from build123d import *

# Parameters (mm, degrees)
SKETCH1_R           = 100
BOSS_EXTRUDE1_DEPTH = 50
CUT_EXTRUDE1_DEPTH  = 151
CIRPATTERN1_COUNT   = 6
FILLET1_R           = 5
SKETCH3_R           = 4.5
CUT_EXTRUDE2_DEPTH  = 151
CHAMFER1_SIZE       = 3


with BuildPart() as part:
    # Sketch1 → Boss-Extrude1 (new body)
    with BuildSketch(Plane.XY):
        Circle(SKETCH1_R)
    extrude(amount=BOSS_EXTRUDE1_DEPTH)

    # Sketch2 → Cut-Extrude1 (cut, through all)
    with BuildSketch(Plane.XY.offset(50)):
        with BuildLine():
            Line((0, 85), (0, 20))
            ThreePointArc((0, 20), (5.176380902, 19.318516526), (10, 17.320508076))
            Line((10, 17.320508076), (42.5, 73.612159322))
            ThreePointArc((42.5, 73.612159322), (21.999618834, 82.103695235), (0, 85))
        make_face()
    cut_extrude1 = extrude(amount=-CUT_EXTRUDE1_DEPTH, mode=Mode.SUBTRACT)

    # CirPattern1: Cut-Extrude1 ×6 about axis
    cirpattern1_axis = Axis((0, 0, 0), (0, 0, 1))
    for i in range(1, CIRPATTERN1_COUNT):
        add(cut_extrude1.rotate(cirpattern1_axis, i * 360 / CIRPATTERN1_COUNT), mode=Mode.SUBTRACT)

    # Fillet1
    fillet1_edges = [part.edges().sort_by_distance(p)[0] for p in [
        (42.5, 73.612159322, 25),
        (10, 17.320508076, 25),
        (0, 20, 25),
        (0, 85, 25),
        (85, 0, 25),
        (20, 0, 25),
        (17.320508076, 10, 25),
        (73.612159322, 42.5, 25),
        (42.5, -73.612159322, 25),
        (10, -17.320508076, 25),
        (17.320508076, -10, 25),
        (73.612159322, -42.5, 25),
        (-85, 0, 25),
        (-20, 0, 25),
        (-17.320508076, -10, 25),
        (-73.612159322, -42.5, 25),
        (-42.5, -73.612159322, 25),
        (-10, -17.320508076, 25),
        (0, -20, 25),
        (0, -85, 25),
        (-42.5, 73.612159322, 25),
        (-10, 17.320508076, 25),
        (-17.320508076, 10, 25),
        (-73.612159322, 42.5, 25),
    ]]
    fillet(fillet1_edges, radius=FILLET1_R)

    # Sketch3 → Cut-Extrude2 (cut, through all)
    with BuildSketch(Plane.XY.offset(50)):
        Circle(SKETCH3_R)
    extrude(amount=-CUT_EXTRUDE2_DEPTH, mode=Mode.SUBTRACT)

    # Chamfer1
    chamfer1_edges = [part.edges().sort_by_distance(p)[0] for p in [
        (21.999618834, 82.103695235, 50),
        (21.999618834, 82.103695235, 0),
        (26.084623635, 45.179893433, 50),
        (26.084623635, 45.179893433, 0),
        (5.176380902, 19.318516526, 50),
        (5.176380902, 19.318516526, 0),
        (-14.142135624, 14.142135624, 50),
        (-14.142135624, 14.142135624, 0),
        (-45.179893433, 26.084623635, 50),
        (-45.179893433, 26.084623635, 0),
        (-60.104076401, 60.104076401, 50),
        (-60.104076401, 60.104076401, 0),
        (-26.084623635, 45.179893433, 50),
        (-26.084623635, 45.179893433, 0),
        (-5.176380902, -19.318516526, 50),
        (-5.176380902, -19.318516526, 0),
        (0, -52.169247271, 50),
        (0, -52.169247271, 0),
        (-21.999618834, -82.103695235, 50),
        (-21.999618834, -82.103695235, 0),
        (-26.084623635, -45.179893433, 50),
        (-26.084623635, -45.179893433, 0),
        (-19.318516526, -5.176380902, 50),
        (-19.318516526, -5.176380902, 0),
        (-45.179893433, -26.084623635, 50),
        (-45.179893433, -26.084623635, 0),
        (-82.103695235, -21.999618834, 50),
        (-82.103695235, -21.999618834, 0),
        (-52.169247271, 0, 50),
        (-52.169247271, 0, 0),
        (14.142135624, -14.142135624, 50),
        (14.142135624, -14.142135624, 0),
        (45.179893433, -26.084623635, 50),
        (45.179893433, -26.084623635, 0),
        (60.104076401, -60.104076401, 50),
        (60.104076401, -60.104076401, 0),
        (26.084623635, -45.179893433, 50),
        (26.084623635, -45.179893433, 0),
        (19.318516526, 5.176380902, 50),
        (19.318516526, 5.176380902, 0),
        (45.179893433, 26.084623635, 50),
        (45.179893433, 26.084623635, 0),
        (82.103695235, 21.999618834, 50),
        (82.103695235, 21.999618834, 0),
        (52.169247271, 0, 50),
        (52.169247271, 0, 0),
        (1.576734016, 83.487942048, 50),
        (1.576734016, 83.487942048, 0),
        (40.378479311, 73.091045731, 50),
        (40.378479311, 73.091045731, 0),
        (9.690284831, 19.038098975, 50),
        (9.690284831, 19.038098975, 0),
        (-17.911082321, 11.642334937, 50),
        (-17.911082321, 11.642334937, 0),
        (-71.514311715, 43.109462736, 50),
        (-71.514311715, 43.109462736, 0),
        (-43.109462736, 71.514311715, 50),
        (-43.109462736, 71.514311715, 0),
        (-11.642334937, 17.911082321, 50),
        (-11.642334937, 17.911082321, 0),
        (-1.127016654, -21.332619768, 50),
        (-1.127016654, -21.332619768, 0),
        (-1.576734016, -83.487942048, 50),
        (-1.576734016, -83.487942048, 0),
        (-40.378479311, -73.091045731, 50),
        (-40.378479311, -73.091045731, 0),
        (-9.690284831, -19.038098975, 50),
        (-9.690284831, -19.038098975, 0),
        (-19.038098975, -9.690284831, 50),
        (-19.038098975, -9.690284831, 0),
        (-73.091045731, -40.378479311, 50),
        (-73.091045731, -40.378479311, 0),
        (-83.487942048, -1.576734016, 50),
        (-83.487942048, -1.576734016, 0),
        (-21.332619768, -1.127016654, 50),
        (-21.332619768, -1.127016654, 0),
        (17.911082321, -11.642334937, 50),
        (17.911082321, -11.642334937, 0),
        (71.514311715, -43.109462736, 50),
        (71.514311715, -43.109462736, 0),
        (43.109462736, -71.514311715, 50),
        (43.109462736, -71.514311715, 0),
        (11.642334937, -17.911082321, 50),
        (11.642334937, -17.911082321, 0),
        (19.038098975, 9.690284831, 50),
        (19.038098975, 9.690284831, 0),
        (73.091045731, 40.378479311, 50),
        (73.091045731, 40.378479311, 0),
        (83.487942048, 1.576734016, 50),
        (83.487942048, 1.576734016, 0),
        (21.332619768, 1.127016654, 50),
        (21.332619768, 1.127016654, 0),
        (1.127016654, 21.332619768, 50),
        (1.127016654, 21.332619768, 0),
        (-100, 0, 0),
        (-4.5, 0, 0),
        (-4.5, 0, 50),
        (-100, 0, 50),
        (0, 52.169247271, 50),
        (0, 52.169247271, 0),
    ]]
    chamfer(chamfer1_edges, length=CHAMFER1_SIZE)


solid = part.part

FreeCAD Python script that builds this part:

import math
import FreeCAD as App
import Part
import Sketcher

V = App.Vector
Q = App.Units.Quantity


def edges_at(feature, points):
    """Names of the edges that pass closest to the given points."""
    edges = feature.Shape.Edges
    near = lambda p: min(range(len(edges)), key=lambda i: edges[i].distToShape(Part.Vertex(*p))[0])
    return sorted({f"Edge{near(p) + 1}" for p in points})

doc = App.newDocument("Part")
body = doc.addObject("PartDesign::Body", "Body")

# Sketch on XY plane
sketch1 = body.newObject("Sketcher::SketchObject", "Sketch")
sketch1.AttachmentSupport = (doc.getObject("XY_Plane"), [""])
sketch1.MapMode = "FlatFace"
sketch1.addGeometry(Part.Circle(V(0, 0, 0), V(0, 0, 1), 100), False)
sketch1.addConstraint(Sketcher.Constraint("Coincident", 0, 3, -1, 1))
sketch1.addConstraint(Sketcher.Constraint("Diameter", 0, 200.0))
pad1 = body.newObject("PartDesign::Pad", "Pad")
pad1.Profile = sketch1
pad1.Length = 50

# Sketch on XY plane
sketch2 = body.newObject("Sketcher::SketchObject", "Sketch001")
sketch2.AttachmentSupport = (doc.getObject("XY_Plane"), [""])
sketch2.MapMode = "FlatFace"
sketch2.AttachmentOffset = App.Placement(V(0, 0, 50), App.Rotation())
sketch2.addGeometry(Part.LineSegment(V(0, 85, 0), V(0, 20, 0)), False)
sketch2.addGeometry(Part.ArcOfCircle(Part.Circle(V(0, 0, 0), V(0, 0, 1), 20), math.radians(60), math.radians(90)), False)
sketch2.addGeometry(Part.LineSegment(V(10, 17, 0), V(42, 74, 0)), False)
sketch2.addGeometry(Part.ArcOfCircle(Part.Circle(V(0, 0, 0), V(0, 0, 1), 85), math.radians(60), math.radians(90)), False)
sketch2.addConstraint(Sketcher.Constraint("Coincident", 0, 2, 1, 2))
sketch2.addConstraint(Sketcher.Constraint("Coincident", 1, 1, 2, 1))
sketch2.addConstraint(Sketcher.Constraint("Coincident", 2, 2, 3, 1))
sketch2.addConstraint(Sketcher.Constraint("Coincident", 3, 2, 0, 1))
sketch2.addConstraint(Sketcher.Constraint("Vertical", 0))
sketch2.addConstraint(Sketcher.Constraint("Coincident", 1, 3, -1, 1))
sketch2.addConstraint(Sketcher.Constraint("Coincident", 3, 3, -1, 1))
sketch2.addConstraint(Sketcher.Constraint("PointOnObject", 0, 2, -2))
sketch2.addConstraint(Sketcher.Constraint("Radius", 1, 20.0))
sketch2.addConstraint(Sketcher.Constraint("Radius", 3, 85.0))
sketch2.addConstraint(Sketcher.Constraint("Angle", 2, Q("60 deg")))
sketch2.addConstraint(Sketcher.Constraint("DistanceX", -1, 1, 1, 1, 10.0))
pocket1 = body.newObject("PartDesign::Pocket", "Pocket")
pocket1.Profile = sketch2
pocket1.Type = "ThroughAll"
doc.recompute()

polarpattern = body.newObject("PartDesign::PolarPattern", "PolarPattern")
polarpattern.Originals = [pocket1]
polarpattern.Axis = (doc.getObject("Z_Axis"), [""])
polarpattern.Angle = 360
polarpattern.Occurrences = 6
body.Tip = polarpattern
doc.recompute()

fillet = body.newObject("PartDesign::Fillet", "Fillet")
fillet.Base = (polarpattern, edges_at(polarpattern, [
    (42.5, 73.612, 25),
    (10, 17.321, 25),
    (0, 20, 25),
    (0, 85, 25),
    (85, 0, 25),
    (20, 0, 25),
    (17.321, 10, 25),
    (73.612, 42.5, 25),
    (42.5, -73.612, 25),
    (10, -17.321, 25),
    (17.321, -10, 25),
    (73.612, -42.5, 25),
    (-85, 0, 25),
    (-20, 0, 25),
    (-17.321, -10, 25),
    (-73.612, -42.5, 25),
    (-42.5, -73.612, 25),
    (-10, -17.321, 25),
    (0, -20, 25),
    (0, -85, 25),
    (-42.5, 73.612, 25),
    (-10, 17.321, 25),
    (-17.321, 10, 25),
    (-73.612, 42.5, 25),
]))
fillet.Radius = 5

# Sketch on XY plane
sketch3 = body.newObject("Sketcher::SketchObject", "Sketch002")
sketch3.AttachmentSupport = (doc.getObject("XY_Plane"), [""])
sketch3.MapMode = "FlatFace"
sketch3.AttachmentOffset = App.Placement(V(0, 0, 50), App.Rotation())
sketch3.addGeometry(Part.Circle(V(0, 0, 0), V(0, 0, 1), 4.5), False)
sketch3.addConstraint(Sketcher.Constraint("Coincident", 0, 3, -1, 1))
sketch3.addConstraint(Sketcher.Constraint("Diameter", 0, 9.0))
pocket2 = body.newObject("PartDesign::Pocket", "Pocket001")
pocket2.Profile = sketch3
pocket2.Type = "ThroughAll"
doc.recompute()

chamfer = body.newObject("PartDesign::Chamfer", "Chamfer")
chamfer.Base = (pocket2, edges_at(pocket2, [
    (22, 82.104, 50),
    (22, 82.104, 0),
    (26.085, 45.18, 50),
    (26.085, 45.18, 0),
    (5.176, 19.319, 50),
    (5.176, 19.319, 0),
    (-14.142, 14.142, 50),
    (-14.142, 14.142, 0),
    (-45.18, 26.085, 50),
    (-45.18, 26.085, 0),
    (-60.104, 60.104, 50),
    (-60.104, 60.104, 0),
    (-26.085, 45.18, 50),
    (-26.085, 45.18, 0),
    (-5.176, -19.319, 50),
    (-5.176, -19.319, 0),
    (0, -52.169, 50),
    (0, -52.169, 0),
    (-22, -82.104, 50),
    (-22, -82.104, 0),
    (-26.085, -45.18, 50),
    (-26.085, -45.18, 0),
    (-19.319, -5.176, 50),
    (-19.319, -5.176, 0),
    (-45.18, -26.085, 50),
    (-45.18, -26.085, 0),
    (-82.104, -22, 50),
    (-82.104, -22, 0),
    (-52.169, 0, 50),
    (-52.169, 0, 0),
    (14.142, -14.142, 50),
    (14.142, -14.142, 0),
    (45.18, -26.085, 50),
    (45.18, -26.085, 0),
    (60.104, -60.104, 50),
    (60.104, -60.104, 0),
    (26.085, -45.18, 50),
    (26.085, -45.18, 0),
    (19.319, 5.176, 50),
    (19.319, 5.176, 0),
    (45.18, 26.085, 50),
    (45.18, 26.085, 0),
    (82.104, 22, 50),
    (82.104, 22, 0),
    (52.169, 0, 50),
    (52.169, 0, 0),
    (1.577, 83.488, 50),
    (1.577, 83.488, 0),
    (40.378, 73.091, 50),
    (40.378, 73.091, 0),
    (9.69, 19.038, 50),
    (9.69, 19.038, 0),
    (-17.911, 11.642, 50),
    (-17.911, 11.642, 0),
    (-71.514, 43.109, 50),
    (-71.514, 43.109, 0),
    (-43.109, 71.514, 50),
    (-43.109, 71.514, 0),
    (-11.642, 17.911, 50),
    (-11.642, 17.911, 0),
    (-1.127, -21.333, 50),
    (-1.127, -21.333, 0),
    (-1.577, -83.488, 50),
    (-1.577, -83.488, 0),
    (-40.378, -73.091, 50),
    (-40.378, -73.091, 0),
    (-9.69, -19.038, 50),
    (-9.69, -19.038, 0),
    (-19.038, -9.69, 50),
    (-19.038, -9.69, 0),
    (-73.091, -40.378, 50),
    (-73.091, -40.378, 0),
    (-83.488, -1.577, 50),
    (-83.488, -1.577, 0),
    (-21.333, -1.127, 50),
    (-21.333, -1.127, 0),
    (17.911, -11.642, 50),
    (17.911, -11.642, 0),
    (71.514, -43.109, 50),
    (71.514, -43.109, 0),
    (43.109, -71.514, 50),
    (43.109, -71.514, 0),
    (11.642, -17.911, 50),
    (11.642, -17.911, 0),
    (19.038, 9.69, 50),
    (19.038, 9.69, 0),
    (73.091, 40.378, 50),
    (73.091, 40.378, 0),
    (83.488, 1.577, 50),
    (83.488, 1.577, 0),
    (21.333, 1.127, 50),
    (21.333, 1.127, 0),
    (1.127, 21.333, 50),
    (1.127, 21.333, 0),
    (-100, 0, 0),
    (-4.5, 0, 0),
    (-4.5, 0, 50),
    (-100, 0, 50),
    (0, 52.169, 50),
    (0, 52.169, 0),
]))
chamfer.Size = 3

doc.recompute()
